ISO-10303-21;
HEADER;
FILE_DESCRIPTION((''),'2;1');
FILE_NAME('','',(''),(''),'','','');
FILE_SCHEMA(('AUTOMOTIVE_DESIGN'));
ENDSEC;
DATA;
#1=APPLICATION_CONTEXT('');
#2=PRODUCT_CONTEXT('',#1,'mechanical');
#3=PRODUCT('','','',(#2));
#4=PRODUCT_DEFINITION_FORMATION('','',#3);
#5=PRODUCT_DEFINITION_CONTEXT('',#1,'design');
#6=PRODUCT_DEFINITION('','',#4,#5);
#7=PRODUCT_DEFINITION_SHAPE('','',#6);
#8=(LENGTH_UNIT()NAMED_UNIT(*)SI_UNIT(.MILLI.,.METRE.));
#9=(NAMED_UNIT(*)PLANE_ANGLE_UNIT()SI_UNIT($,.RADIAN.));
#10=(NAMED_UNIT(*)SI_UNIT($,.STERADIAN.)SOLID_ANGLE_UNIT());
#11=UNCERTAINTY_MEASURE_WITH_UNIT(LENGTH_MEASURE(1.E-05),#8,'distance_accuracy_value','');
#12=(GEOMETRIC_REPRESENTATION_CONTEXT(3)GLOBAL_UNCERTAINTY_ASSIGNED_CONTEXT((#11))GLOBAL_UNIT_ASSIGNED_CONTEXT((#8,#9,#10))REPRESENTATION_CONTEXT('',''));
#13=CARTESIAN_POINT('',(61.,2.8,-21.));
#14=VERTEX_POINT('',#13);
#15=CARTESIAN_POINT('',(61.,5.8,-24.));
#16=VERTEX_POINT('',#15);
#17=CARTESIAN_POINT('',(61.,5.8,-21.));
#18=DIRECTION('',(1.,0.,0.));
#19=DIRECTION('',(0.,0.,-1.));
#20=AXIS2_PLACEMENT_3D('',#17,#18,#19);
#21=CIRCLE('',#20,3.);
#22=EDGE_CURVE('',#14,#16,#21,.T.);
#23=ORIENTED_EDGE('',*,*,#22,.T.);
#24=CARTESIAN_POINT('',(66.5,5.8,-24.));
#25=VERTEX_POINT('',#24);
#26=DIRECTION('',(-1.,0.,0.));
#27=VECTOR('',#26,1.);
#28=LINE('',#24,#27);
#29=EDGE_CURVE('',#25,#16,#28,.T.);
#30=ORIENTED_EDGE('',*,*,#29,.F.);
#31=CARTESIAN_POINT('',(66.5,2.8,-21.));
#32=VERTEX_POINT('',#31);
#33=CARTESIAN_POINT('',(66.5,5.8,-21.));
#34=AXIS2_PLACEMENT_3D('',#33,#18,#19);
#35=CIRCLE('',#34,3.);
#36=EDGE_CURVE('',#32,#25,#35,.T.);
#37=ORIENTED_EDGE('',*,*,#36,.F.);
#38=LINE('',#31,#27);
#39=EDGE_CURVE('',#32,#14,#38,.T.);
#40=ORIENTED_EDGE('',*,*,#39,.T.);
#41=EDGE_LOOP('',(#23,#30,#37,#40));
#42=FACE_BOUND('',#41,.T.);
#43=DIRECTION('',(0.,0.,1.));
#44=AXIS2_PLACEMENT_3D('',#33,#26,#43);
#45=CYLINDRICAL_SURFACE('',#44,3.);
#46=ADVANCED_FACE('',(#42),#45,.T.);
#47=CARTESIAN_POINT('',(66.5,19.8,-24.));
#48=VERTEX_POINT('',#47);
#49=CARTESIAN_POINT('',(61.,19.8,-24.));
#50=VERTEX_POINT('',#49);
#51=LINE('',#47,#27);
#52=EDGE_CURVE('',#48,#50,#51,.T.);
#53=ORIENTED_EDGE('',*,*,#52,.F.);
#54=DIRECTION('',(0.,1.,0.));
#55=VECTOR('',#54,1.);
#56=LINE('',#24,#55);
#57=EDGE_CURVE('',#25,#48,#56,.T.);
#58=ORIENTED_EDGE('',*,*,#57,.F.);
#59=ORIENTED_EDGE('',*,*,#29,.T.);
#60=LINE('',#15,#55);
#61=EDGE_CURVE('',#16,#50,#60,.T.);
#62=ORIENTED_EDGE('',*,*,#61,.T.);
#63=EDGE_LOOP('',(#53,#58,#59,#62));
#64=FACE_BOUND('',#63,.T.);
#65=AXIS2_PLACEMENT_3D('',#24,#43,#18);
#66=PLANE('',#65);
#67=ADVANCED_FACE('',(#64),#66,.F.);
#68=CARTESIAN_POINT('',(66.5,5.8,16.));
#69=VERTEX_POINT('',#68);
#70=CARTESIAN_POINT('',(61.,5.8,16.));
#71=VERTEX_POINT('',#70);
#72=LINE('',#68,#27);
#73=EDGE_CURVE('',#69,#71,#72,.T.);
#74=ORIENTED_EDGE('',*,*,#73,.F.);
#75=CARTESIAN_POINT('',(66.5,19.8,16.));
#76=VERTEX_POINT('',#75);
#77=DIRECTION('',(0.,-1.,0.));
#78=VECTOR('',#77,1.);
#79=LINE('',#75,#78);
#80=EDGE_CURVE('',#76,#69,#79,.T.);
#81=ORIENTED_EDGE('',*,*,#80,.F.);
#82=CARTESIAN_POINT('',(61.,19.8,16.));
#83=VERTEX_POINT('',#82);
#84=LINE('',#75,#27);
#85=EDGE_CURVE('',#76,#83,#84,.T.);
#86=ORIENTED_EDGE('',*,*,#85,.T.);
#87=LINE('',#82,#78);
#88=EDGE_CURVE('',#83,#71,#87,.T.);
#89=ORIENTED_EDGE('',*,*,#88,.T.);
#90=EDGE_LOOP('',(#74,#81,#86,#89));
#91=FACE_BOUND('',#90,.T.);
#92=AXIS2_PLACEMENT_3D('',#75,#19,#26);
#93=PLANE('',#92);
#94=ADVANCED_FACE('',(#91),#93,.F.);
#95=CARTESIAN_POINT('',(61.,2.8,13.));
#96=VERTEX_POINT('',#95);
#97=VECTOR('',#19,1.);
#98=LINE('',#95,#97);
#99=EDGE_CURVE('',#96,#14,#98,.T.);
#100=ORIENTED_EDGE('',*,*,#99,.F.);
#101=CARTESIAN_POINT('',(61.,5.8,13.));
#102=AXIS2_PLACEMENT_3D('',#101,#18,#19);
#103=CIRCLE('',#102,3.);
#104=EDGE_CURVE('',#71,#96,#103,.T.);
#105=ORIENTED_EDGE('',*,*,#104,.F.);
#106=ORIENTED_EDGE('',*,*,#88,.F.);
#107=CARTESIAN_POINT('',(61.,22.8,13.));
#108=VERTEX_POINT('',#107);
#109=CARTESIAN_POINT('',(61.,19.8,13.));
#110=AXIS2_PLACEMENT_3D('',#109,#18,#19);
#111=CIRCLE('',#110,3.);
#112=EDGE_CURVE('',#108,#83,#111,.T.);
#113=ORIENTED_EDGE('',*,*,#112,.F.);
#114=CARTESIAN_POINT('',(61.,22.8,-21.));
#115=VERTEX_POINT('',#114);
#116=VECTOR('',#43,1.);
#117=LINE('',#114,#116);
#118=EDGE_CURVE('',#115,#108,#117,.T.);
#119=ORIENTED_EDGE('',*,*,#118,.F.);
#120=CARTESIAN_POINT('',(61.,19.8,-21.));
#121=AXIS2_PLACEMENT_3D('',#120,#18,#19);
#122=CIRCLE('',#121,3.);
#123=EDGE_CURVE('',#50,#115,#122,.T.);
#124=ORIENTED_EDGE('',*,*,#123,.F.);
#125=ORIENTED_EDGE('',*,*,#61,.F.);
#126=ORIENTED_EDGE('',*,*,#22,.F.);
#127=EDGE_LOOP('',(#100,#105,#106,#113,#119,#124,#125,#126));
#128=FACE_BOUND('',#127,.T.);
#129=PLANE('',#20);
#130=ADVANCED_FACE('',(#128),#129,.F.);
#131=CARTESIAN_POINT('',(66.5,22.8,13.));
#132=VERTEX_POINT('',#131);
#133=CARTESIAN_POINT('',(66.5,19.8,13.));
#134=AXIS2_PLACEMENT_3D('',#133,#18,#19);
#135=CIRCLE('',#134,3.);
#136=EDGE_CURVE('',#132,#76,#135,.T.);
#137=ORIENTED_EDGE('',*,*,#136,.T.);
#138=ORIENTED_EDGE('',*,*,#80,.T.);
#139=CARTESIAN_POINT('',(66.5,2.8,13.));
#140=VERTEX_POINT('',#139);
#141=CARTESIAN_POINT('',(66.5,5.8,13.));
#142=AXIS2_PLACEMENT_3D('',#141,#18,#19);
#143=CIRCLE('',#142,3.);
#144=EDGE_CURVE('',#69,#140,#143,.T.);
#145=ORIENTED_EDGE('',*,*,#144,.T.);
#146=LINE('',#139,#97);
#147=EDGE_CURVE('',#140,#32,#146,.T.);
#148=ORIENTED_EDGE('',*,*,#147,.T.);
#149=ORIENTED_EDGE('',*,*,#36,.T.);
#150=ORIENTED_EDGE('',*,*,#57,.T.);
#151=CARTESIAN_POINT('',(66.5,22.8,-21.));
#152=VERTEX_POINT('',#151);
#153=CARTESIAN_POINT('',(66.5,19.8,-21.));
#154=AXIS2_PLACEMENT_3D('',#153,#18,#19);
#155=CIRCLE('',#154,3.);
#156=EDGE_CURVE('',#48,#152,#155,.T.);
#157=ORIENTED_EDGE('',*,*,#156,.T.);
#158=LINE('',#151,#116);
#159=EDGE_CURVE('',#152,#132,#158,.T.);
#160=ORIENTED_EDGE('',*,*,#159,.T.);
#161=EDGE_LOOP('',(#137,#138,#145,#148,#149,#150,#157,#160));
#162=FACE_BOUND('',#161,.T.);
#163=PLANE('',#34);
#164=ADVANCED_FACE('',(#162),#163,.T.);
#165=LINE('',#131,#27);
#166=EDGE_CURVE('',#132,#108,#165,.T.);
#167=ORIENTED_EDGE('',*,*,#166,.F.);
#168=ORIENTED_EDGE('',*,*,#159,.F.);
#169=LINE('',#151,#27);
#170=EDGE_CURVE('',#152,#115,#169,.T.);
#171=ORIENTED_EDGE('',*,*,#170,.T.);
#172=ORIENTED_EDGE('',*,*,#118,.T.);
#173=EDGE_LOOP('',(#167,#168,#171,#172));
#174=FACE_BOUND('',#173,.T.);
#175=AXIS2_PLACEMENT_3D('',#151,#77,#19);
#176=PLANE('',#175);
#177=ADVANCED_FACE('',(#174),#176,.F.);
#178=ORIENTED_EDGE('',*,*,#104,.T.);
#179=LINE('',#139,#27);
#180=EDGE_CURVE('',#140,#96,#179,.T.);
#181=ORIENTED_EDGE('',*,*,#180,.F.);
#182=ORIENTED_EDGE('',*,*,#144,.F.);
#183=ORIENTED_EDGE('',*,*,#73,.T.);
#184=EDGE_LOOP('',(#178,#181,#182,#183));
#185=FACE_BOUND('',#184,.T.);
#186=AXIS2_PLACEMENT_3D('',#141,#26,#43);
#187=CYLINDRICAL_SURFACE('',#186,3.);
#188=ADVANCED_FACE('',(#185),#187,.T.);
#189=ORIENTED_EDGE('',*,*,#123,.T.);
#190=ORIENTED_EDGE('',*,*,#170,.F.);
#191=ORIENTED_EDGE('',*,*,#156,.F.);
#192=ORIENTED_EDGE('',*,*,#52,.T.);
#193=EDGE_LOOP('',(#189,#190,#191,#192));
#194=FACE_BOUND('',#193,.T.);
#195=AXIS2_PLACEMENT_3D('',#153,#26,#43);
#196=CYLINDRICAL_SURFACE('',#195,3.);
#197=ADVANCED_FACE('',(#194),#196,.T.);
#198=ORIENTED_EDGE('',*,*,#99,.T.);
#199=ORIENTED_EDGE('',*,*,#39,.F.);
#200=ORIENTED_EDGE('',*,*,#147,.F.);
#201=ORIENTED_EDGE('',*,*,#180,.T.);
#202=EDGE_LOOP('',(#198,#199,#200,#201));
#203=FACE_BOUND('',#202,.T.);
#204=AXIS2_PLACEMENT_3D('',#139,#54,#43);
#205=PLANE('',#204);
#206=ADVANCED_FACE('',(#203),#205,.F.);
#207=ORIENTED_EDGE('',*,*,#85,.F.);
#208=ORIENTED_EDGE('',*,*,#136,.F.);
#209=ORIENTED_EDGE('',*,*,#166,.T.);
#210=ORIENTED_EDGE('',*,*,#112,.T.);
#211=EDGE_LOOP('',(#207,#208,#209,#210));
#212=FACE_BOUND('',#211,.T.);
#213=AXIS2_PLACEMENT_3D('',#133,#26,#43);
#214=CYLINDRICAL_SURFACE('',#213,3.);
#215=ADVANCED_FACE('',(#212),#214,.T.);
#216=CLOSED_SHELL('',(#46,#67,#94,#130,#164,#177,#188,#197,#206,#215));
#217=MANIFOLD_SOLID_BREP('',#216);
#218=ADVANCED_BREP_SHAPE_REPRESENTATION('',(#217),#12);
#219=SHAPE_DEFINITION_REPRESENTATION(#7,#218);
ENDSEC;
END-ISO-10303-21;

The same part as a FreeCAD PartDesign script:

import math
import FreeCAD as App
import Part
import Sketcher

V = App.Vector

doc = App.newDocument("Part")
params = doc.addObject("Spreadsheet::Sheet", "Params")
for row, (alias, value) in enumerate([
    ("sketch1_radius", "3 mm"),
    ("sketch1_width", "14 mm"),
    ("sketch1_height", "34 mm"),
    ("pad1_length", "5.5 mm"),
], start=1):
    params.set(f"A{row}", alias)
    params.set(f"B{row}", "=" + value)
    params.setAlias(f"B{row}", alias)

body = doc.addObject("PartDesign::Body", "Body")

sketch1 = body.newObject("Sketcher::SketchObject", "Sketch")
sketch1.AttachmentSupport = (doc.getObject("YZ_Plane"), [""])
sketch1.MapMode = "FlatFace"
sketch1.AttachmentOffset = App.Placement(V(0, 0, 61), App.Rotation())
sketch1.addGeometry(Part.LineSegment(V(5.8, -24, 0), V(19.8, -24, 0)), False)
sketch1.addGeometry(Part.ArcOfCircle(Part.Circle(V(19.8, -21, 0), V(0, 0, 1), 3), math.radians(-90), math.radians(0)), False)
sketch1.addGeometry(Part.LineSegment(V(22.8, -21, 0), V(22.8, 13, 0)), False)
sketch1.addGeometry(Part.ArcOfCircle(Part.Circle(V(19.8, 13, 0), V(0, 0, 1), 3), math.radians(0), math.radians(90)), False)
sketch1.addGeometry(Part.LineSegment(V(19.8, 16, 0), V(5.8, 16, 0)), False)
sketch1.addGeometry(Part.ArcOfCircle(Part.Circle(V(5.8, 13, 0), V(0, 0, 1), 3), math.radians(90), math.radians(180)), False)
sketch1.addGeometry(Part.LineSegment(V(2.8, 13, 0), V(2.8, -21, 0)), False)
sketch1.addGeometry(Part.ArcOfCircle(Part.Circle(V(5.8, -21, 0), V(0, 0, 1), 3), math.radians(180), math.radians(270)), False)
sketch1.addConstraint(Sketcher.Constraint("Tangent", 0, 2, 1, 1))
sketch1.addConstraint(Sketcher.Constraint("Tangent", 1, 2, 2, 1))
sketch1.addConstraint(Sketcher.Constraint("Tangent", 2, 2, 3, 1))
sketch1.addConstraint(Sketcher.Constraint("Tangent", 3, 2, 4, 1))
sketch1.addConstraint(Sketcher.Constraint("Tangent", 4, 2, 5, 1))
sketch1.addConstraint(Sketcher.Constraint("Tangent", 5, 2, 6, 1))
sketch1.addConstraint(Sketcher.Constraint("Tangent", 6, 2, 7, 1))
sketch1.addConstraint(Sketcher.Constraint("Tangent", 7, 2, 0, 1))
sketch1.addConstraint(Sketcher.Constraint("Horizontal", 0))
sketch1.addConstraint(Sketcher.Constraint("Vertical", 2))
sketch1.addConstraint(Sketcher.Constraint("Horizontal", 4))
sketch1.addConstraint(Sketcher.Constraint("Vertical", 6))
sketch1.addConstraint(Sketcher.Constraint("Equal", 1, 3))
sketch1.addConstraint(Sketcher.Constraint("Equal", 3, 5))
sketch1.addConstraint(Sketcher.Constraint("Equal", 5, 7))
sketch1.addConstraint(Sketcher.Constraint("Radius", 1, 3.0))
sketch1.addConstraint(Sketcher.Constraint("DistanceX", 0, 1, 0, 2, 14.0))
sketch1.addConstraint(Sketcher.Constraint("DistanceY", 2, 1, 2, 2, 34.0))
sketch1.addConstraint(Sketcher.Constraint("DistanceY", 1, 3, -1, 1, 21.0))
sketch1.addConstraint(Sketcher.Constraint("DistanceX", -1, 1, 1, 3, 19.8))
sketch1.setExpression("Constraints[15]", "Params.sketch1_radius")
sketch1.setExpression("Constraints[16]", "Params.sketch1_width")
sketch1.setExpression("Constraints[17]", "Params.sketch1_height")
pad1 = body.newObject("PartDesign::Pad", "Pad")
pad1.Profile = sketch1
pad1.setExpression("Length", "Params.pad1_length")

doc.recompute()
